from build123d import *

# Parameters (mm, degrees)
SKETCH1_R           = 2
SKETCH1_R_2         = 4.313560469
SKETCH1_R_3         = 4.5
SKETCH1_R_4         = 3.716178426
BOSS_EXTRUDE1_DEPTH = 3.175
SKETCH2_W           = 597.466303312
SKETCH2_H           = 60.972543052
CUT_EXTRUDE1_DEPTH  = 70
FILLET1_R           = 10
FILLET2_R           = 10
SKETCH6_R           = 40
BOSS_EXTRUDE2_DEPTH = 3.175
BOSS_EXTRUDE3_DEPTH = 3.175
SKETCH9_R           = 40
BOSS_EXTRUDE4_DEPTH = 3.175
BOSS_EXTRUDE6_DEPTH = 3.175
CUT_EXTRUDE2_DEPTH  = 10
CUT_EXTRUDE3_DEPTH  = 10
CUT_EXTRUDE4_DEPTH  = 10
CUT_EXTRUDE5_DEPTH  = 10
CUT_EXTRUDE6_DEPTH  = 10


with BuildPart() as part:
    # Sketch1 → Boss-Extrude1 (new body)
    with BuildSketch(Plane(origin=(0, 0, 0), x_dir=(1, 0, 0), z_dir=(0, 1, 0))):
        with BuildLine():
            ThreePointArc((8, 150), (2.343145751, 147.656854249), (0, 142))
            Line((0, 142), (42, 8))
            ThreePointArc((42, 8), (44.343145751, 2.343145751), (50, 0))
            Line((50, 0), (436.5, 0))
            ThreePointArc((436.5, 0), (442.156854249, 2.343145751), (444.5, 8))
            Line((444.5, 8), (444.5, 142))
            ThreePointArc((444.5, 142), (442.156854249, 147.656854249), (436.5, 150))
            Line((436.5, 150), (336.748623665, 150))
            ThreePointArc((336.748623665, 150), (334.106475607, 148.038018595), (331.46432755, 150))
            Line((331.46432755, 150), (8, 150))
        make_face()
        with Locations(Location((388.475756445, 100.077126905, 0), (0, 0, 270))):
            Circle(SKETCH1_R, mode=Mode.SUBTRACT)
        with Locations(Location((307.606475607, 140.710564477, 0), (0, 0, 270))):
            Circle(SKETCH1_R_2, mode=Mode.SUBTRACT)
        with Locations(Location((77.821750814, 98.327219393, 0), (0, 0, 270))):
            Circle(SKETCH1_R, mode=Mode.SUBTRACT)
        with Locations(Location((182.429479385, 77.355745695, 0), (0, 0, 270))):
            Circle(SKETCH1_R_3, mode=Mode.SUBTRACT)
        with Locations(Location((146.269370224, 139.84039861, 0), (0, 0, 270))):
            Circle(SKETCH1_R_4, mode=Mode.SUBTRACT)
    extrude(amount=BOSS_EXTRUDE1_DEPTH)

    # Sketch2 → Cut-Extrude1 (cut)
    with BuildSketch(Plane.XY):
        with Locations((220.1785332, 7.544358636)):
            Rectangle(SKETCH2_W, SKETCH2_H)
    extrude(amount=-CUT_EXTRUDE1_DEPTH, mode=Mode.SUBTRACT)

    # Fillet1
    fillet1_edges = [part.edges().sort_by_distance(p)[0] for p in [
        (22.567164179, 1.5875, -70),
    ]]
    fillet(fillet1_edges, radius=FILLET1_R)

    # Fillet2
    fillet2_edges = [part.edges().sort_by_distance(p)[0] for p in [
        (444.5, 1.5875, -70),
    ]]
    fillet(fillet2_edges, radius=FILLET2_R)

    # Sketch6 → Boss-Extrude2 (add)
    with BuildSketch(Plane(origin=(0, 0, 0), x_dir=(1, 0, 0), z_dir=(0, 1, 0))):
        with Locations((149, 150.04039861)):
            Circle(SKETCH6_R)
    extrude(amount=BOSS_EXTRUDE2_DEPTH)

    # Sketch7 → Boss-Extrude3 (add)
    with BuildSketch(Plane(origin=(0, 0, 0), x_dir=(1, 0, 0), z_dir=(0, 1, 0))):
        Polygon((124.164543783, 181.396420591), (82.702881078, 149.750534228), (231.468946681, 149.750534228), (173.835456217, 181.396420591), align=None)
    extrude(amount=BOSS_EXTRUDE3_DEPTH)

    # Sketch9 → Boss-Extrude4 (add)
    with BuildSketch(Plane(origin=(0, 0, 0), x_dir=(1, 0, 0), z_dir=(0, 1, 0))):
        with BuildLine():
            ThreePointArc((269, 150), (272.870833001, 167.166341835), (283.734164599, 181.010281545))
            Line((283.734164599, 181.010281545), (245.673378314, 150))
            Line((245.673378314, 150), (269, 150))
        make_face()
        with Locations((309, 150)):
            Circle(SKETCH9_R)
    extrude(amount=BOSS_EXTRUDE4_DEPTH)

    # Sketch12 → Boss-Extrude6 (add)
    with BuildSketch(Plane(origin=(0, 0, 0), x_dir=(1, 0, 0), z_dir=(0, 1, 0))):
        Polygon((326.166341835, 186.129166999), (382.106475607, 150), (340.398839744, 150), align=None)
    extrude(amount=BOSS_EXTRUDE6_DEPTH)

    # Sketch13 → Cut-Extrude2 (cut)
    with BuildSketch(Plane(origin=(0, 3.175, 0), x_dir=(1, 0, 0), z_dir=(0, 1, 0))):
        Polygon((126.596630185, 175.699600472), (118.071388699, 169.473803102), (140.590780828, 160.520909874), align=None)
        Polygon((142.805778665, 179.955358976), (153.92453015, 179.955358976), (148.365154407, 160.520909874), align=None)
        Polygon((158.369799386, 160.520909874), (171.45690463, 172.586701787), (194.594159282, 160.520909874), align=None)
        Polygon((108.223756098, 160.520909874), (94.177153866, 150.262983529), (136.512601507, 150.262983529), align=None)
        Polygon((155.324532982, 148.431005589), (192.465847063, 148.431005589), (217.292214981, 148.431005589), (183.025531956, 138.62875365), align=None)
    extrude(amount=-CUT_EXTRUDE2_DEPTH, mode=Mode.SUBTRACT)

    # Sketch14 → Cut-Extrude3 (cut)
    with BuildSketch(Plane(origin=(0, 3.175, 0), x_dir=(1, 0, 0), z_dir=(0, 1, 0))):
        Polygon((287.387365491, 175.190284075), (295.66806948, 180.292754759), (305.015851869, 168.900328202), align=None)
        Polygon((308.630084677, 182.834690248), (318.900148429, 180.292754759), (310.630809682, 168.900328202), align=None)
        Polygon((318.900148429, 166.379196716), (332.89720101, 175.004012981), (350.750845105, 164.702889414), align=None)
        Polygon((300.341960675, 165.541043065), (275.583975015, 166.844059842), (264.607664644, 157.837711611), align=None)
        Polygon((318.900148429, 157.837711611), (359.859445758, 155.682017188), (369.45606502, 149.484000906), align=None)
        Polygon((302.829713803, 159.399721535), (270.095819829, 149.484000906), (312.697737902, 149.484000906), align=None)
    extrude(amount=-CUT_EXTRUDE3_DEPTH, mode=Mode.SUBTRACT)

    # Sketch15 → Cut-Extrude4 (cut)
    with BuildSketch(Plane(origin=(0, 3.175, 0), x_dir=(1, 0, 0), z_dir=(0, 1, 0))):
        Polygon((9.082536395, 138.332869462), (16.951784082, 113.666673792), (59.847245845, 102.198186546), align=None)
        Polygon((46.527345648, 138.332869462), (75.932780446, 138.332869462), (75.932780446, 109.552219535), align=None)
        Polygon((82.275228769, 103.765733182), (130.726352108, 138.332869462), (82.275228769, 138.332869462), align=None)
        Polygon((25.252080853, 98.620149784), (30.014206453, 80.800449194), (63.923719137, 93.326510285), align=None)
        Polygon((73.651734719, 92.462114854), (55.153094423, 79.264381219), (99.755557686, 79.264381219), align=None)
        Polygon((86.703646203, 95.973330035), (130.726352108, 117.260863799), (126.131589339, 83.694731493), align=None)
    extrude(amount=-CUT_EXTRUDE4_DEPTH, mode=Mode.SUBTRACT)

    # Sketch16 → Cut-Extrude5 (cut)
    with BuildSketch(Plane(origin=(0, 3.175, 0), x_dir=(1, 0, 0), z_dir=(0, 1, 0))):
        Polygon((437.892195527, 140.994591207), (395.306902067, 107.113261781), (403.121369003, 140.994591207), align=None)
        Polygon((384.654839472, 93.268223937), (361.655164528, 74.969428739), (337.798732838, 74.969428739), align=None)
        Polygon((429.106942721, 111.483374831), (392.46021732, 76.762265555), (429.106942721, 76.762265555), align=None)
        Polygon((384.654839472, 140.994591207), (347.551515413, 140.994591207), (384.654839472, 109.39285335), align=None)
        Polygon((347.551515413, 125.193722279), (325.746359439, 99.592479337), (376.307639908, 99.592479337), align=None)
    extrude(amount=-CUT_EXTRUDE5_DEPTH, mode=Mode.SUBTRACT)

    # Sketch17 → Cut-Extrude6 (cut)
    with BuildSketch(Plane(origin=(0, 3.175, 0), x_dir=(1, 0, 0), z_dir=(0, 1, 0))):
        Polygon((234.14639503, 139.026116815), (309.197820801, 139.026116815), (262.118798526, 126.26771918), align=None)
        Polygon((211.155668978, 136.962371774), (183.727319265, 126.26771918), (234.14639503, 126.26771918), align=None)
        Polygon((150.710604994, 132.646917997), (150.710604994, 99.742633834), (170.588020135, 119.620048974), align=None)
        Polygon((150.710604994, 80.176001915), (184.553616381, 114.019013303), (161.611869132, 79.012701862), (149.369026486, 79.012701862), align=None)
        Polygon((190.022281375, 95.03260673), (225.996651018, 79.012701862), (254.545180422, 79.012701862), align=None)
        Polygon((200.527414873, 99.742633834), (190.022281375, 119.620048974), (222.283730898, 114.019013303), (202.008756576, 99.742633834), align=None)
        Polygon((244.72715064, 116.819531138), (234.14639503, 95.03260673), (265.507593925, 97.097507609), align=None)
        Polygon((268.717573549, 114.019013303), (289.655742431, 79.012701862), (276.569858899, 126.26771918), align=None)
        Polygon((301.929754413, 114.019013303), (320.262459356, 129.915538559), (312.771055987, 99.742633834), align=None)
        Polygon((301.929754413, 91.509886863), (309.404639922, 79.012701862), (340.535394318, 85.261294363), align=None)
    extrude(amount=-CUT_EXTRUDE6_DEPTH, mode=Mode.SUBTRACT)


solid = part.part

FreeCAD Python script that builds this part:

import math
import FreeCAD as App
import Part
import Sketcher

V = App.Vector
Q = App.Units.Quantity


def edges_at(feature, points):
    """Names of the edges that pass closest to the given points."""
    edges = feature.Shape.Edges
    near = lambda p: min(range(len(edges)), key=lambda i: edges[i].distToShape(Part.Vertex(*p))[0])
    return sorted({f"Edge{near(p) + 1}" for p in points})


def add_polygon(sketch, points):
    """Adds a closed chain of lines whose ends are joined by coincident constraints."""
    first, n = sketch.GeometryCount, len(points)
    for a, b in zip(points, points[1:] + points[:1]):
        sketch.addGeometry(Part.LineSegment(App.Vector(*a, 0), App.Vector(*b, 0)), False)
    for i in range(n):
        sketch.addConstraint(Sketcher.Constraint("Coincident", first + i, 2, first + (i + 1) % n, 1))

doc = App.newDocument("Part")
body = doc.addObject("PartDesign::Body", "Body")

sketch1 = body.newObject("Sketcher::SketchObject", "Sketch")
sketch1.AttachmentSupport = (doc.getObject("XZ_Plane"), [""])
sketch1.MapMode = "FlatFace"
sketch1.addGeometry([
    Part.ArcOfCircle(Part.Circle(V(8, -142, 0), V(0, 0, 1), 8), math.radians(-180), math.radians(-90)),
    Part.LineSegment(V(0, -142, 0), V(42, -8, 0)),
    Part.ArcOfCircle(Part.Circle(V(50, -8, 0), V(0, 0, 1), 8), math.radians(90), math.radians(180)),
    Part.LineSegment(V(50, 0, 0), V(436.5, 0, 0)),
    Part.ArcOfCircle(Part.Circle(V(436.5, -8, 0), V(0, 0, 1), 8), math.radians(0), math.radians(90)),
    Part.LineSegment(V(444.5, -8, 0), V(444.5, -142, 0)),
    Part.ArcOfCircle(Part.Circle(V(436.5, -142, 0), V(0, 0, 1), 8), math.radians(-90), math.radians(0)),
    Part.LineSegment(V(436.5, -150, 0), V(336.7, -150, 0)),
    Part.ArcOfCircle(Part.Circle(V(334.1, -150.8, 0), V(0, 0, 1), 2.8), math.radians(17), math.radians(163)),
    Part.LineSegment(V(331.5, -150, 0), V(8, -150, 0)),
    Part.Circle(V(182.4, -77.4, 0), V(0, 0, 1), 4.5),
    Part.Circle(V(77.8, -98.3, 0), V(0, 0, 1), 2),
    Part.Circle(V(388.5, -100.1, 0), V(0, 0, 1), 2),
    Part.Circle(V(146.3, -139.8, 0), V(0, 0, 1), 3.7),
    Part.Circle(V(307.6, -140.7, 0), V(0, 0, 1), 4.3),
], False)
sketch1.addConstraint([
    Sketcher.Constraint("Coincident", 0, 1, 1, 1),
    Sketcher.Constraint("Coincident", 1, 2, 2, 2),
    Sketcher.Constraint("Tangent", 2, 1, 3, 1),
    Sketcher.Constraint("Tangent", 3, 2, 4, 2),
    Sketcher.Constraint("Tangent", 4, 1, 5, 1),
    Sketcher.Constraint("Tangent", 5, 2, 6, 2),
    Sketcher.Constraint("Tangent", 6, 1, 7, 1),
    Sketcher.Constraint("Coincident", 7, 2, 8, 1),
    Sketcher.Constraint("Coincident", 8, 2, 9, 1),
    Sketcher.Constraint("Tangent", 9, 2, 0, 2),
    Sketcher.Constraint("Horizontal", 3),
    Sketcher.Constraint("Vertical", 5),
    Sketcher.Constraint("Horizontal", 7),
    Sketcher.Constraint("Horizontal", 9),
    Sketcher.Constraint("Equal", 0, 2),
    Sketcher.Constraint("Equal", 2, 4),
    Sketcher.Constraint("Equal", 4, 6),
    Sketcher.Constraint("Equal", 11, 12),
    Sketcher.Constraint("PointOnObject", 0, 1, -2),
    Sketcher.Constraint("PointOnObject", 2, 1, -1),
    Sketcher.Constraint("Horizontal", 0, 3, 6, 3),
    Sketcher.Constraint("Horizontal", 6, 3, 0, 1),
    Sketcher.Constraint("Horizontal", 4, 3, 1, 2),
    Sketcher.Constraint("Diameter", 10, Q("9 mm")),
    Sketcher.Constraint("Diameter", 11, Q("4 mm")),
    Sketcher.Constraint("Radius", 0, Q("8 mm")),
    Sketcher.Constraint("DistanceY", 5, 2, 5, 1, Q("134 mm")),
    Sketcher.Constraint("DistanceX", 3, 1, 3, 2, Q("386.5 mm")),
    Sketcher.Constraint("DistanceX", -1, 1, 2, 3, Q("50 mm")),
    Sketcher.Constraint("DistanceX", 14, 3, 8, 3, Q("26.5 mm")),
    Sketcher.Constraint("Diameter", 14, Q("8.627121 mm")),
    Sketcher.Constraint("Diameter", 13, Q("7.432357 mm")),
    Sketcher.Constraint("Radius", 8, Q("2.760046 mm")),
    Sketcher.Constraint("DistanceY", 13, 3, -1, 1, Q("139.840399 mm")),
    Sketcher.Constraint("DistanceY", 8, 3, 14, 3, Q("10.0875 mm")),
    Sketcher.Constraint("DistanceX", 7, 2, 7, 1, Q("99.751376 mm")),
    Sketcher.Constraint("DistanceX", 9, 2, 9, 1, Q("323.464328 mm")),
    Sketcher.Constraint("DistanceX", -1, 1, 10, 3, Q("182.429479 mm")),
    Sketcher.Constraint("DistanceX", -1, 1, 11, 3, Q("77.821751 mm")),
    Sketcher.Constraint("DistanceY", 11, 3, -1, 1, Q("98.327219 mm")),
    Sketcher.Constraint("DistanceX", -1, 1, 13, 3, Q("146.26937 mm")),
    Sketcher.Constraint("DistanceY", 8, 3, 10, 3, Q("73.442319 mm")),
    Sketcher.Constraint("DistanceX", 8, 3, 12, 3, Q("54.369281 mm")),
    Sketcher.Constraint("DistanceY", 12, 3, 10, 3, Q("22.721381 mm")),
])
pad1 = body.newObject("PartDesign::Pad", "Pad")
pad1.Profile = sketch1
pad1.Length = 3.175
pad1.Reversed = True

sketch2 = body.newObject("Sketcher::SketchObject", "Sketch001")
sketch2.AttachmentSupport = (doc.getObject("XY_Plane"), [""])
sketch2.MapMode = "FlatFace"
add_polygon(sketch2, [(-79, 38), (-79, -23), (519, -23), (519, 38)])
sketch2.addConstraint([
    Sketcher.Constraint("Vertical", 0),
    Sketcher.Constraint("Horizontal", 1),
    Sketcher.Constraint("Vertical", 2),
    Sketcher.Constraint("Horizontal", 3),
    Sketcher.Constraint("DistanceX", 1, 1, 1, 2, Q("597.466303 mm")),
    Sketcher.Constraint("DistanceY", 0, 2, 0, 1, Q("60.972543 mm")),
    Sketcher.Constraint("DistanceX", 0, 2, -1, 1, Q("78.554618 mm")),
    Sketcher.Constraint("DistanceY", -1, 1, 2, 2, Q("38.03063 mm")),
])
pocket1 = body.newObject("PartDesign::Pocket", "Pocket")
pocket1.Profile = sketch2
pocket1.Length = 70
doc.recompute()

fillet = body.newObject("PartDesign::Fillet", "Fillet")
fillet.Base = (pocket1, edges_at(pocket1, [(22.567, 1.587, -70)]))
fillet.Radius = 10
doc.recompute()

fillet2 = body.newObject("PartDesign::Fillet", "Fillet001")
fillet2.Base = (fillet, edges_at(fillet, [(444.5, 1.587, -70)]))
fillet2.Radius = 10

sketch3 = body.newObject("Sketcher::SketchObject", "Sketch002")
sketch3.AttachmentSupport = (doc.getObject("XZ_Plane"), [""])
sketch3.MapMode = "FlatFace"
sketch3.addGeometry(Part.Circle(V(149, -150, 0), V(0, 0, 1), 40), False)
sketch3.addConstraint([
    Sketcher.Constraint("Diameter", 0, Q("80 mm")),
    Sketcher.Constraint("DistanceX", -1, 1, 0, 3, Q("149 mm")),
    Sketcher.Constraint("DistanceY", 0, 3, -1, 1, Q("150.040399 mm")),
])
pad2 = body.newObject("PartDesign::Pad", "Pad001")
pad2.Profile = sketch3
pad2.Length = 3.175
pad2.Reversed = True

sketch4 = body.newObject("Sketcher::SketchObject", "Sketch003")
sketch4.AttachmentSupport = (doc.getObject("XZ_Plane"), [""])
sketch4.MapMode = "FlatFace"
add_polygon(sketch4, [(124, -181), (83, -150), (231, -150), (174, -181)])
sketch4.addConstraint([
    Sketcher.Constraint("Horizontal", 1),
    Sketcher.Constraint("Horizontal", 3),
    Sketcher.Constraint("DistanceX", 1, 1, 1, 2, Q("148.766066 mm")),
    Sketcher.Constraint("DistanceX", 3, 2, 3, 1, Q("49.670912 mm")),
    Sketcher.Constraint("DistanceX", -1, 1, 0, 2, Q("82.702881 mm")),
    Sketcher.Constraint("DistanceY", 2, 2, -1, 1, Q("181.396421 mm")),
    Sketcher.Constraint("DistanceX", 2, 2, 1, 2, Q("57.63349 mm")),
    Sketcher.Constraint("Distance", 0, Q("52.158715 mm")),
])
pad3 = body.newObject("PartDesign::Pad", "Pad002")
pad3.Profile = sketch4
pad3.Length = 3.175
pad3.Reversed = True

sketch5 = body.newObject("Sketcher::SketchObject", "Sketch004")
sketch5.AttachmentSupport = (doc.getObject("XZ_Plane"), [""])
sketch5.MapMode = "FlatFace"
sketch5.addGeometry([
    Part.LineSegment(V(284, -181, 0), V(246, -150, 0)),
    Part.LineSegment(V(246, -150, 0), V(269, -150, 0)),
    Part.ArcOfCircle(Part.Circle(V(309, -150, 0), V(0, 0, 1), 40), math.radians(-129), math.radians(180)),
], False)
sketch5.addConstraint([
    Sketcher.Constraint("Coincident", 0, 2, 1, 1),
    Sketcher.Constraint("Coincident", 1, 2, 2, 2),
    Sketcher.Constraint("Tangent", 2, 1, 0, 1),
    Sketcher.Constraint("Horizontal", 1),
    Sketcher.Constraint("Horizontal", 2, 3, 0, 2),
    Sketcher.Constraint("Radius", 2, Q("40 mm")),
    Sketcher.Constraint("DistanceX", -1, 1, 2, 3, Q("309 mm")),
    Sketcher.Constraint("DistanceY", 2, 3, -1, 1, Q("150 mm")),
    Sketcher.Constraint("DistanceX", 1, 1, 1, 2, Q("23.326622 mm")),
])
pad4 = body.newObject("PartDesign::Pad", "Pad003")
pad4.Profile = sketch5
pad4.Length = 3.175
pad4.Reversed = True

sketch6 = body.newObject("Sketcher::SketchObject", "Sketch005")
sketch6.AttachmentSupport = (doc.getObject("XZ_Plane"), [""])
sketch6.MapMode = "FlatFace"
add_polygon(sketch6, [(382, -150), (326, -186), (340, -150)])
sketch6.addConstraint([
    Sketcher.Constraint("Horizontal", 2),
    Sketcher.Constraint("DistanceY", 1, 2, -1, 1, Q("150 mm")),
    Sketcher.Constraint("Distance", 1, Q("38.83144 mm")),
    Sketcher.Constraint("DistanceX", 2, 1, 2, 2, Q("41.707636 mm")),
    Sketcher.Constraint("DistanceX", -1, 1, 0, 2, Q("326.166342 mm")),
    Sketcher.Constraint("DistanceX", -1, 1, 1, 2, Q("340.39884 mm")),
])
pad5 = body.newObject("PartDesign::Pad", "Pad004")
pad5.Profile = sketch6
pad5.Length = 3.175
pad5.Reversed = True

sketch7 = body.newObject("Sketcher::SketchObject", "Sketch006")
sketch7.AttachmentSupport = (doc.getObject("XZ_Plane"), [""])
sketch7.MapMode = "FlatFace"
sketch7.AttachmentOffset = App.Placement(V(0, 0, -3.175), App.Rotation())
add_polygon(sketch7, [(127, -176), (118, -169), (141, -161)])
add_polygon(sketch7, [(154, -180), (143, -180), (148, -161)])
add_polygon(sketch7, [(171, -173), (158, -161), (195, -161)])
add_polygon(sketch7, [(108, -161), (94, -150), (137, -150)])
add_polygon(sketch7, [(217, -148), (155, -148), (183, -139)])
sketch7.addConstraint([
    Sketcher.Constraint("Horizontal", 3),
    Sketcher.Constraint("Horizontal", 7),
    Sketcher.Constraint("Horizontal", 10),
    Sketcher.Constraint("Horizontal", 12),
    Sketcher.Constraint("Perpendicular", 2, 6),
    Sketcher.Constraint("Parallel", 0, 9),
    Sketcher.Constraint("Perpendicular", 4, 14),
    Sketcher.Constraint("Horizontal", 1, 2, 4, 2),
    Sketcher.Constraint("Horizontal", 4, 2, 6, 2),
    Sketcher.Constraint("Horizontal", 7, 2, 11, 2),
    Sketcher.Constraint("Equal", 4, 5),
    Sketcher.Constraint("DistanceX", 9, 2, 4, 2, Q("54.188001 mm")),
    Sketcher.Constraint("DistanceX", 12, 2, 13, 2, Q("27.700999 mm")),
    Sketcher.Constraint("DistanceX", 3, 2, 3, 1, Q("11.118751 mm")),
    Sketcher.Constraint("DistanceX", 7, 1, 7, 2, Q("36.22436 mm")),
    Sketcher.Constraint("DistanceX", 12, 2, 12, 1, Q("61.967682 mm")),
    Sketcher.Constraint("DistanceY", 2, 2, -1, 1, Q("175.6996 mm")),
    Sketcher.Constraint("DistanceX", -1, 1, 6, 2, Q("158.369799 mm")),
    Sketcher.Constraint("DistanceY", 8, 2, -1, 1, Q("172.586702 mm")),
    Sketcher.Constraint("DistanceX", -1, 1, 10, 2, Q("136.512602 mm")),
    Sketcher.Constraint("DistanceX", 2, 2, 5, 2, Q("27.3279 mm")),
    Sketcher.Constraint("Distance", 0, Q("10.556529 mm")),
    Sketcher.Constraint("Distance", 2, Q("20.645312 mm")),
    Sketcher.Constraint("Distance", 6, Q("17.80044 mm")),
    Sketcher.Constraint("Distance", 9, Q("17.39345 mm")),
    Sketcher.Constraint("Distance", 11, Q("30.091258 mm")),
    Sketcher.Constraint("Distance", 13, Q("29.384171 mm")),
    Sketcher.Constraint("DistanceX", 10, 1, 10, 2, Q("42.335448 mm")),
    Sketcher.Constraint("DistanceX", -1, 1, 13, 2, Q("183.025532 mm")),
    Sketcher.Constraint("DistanceY", 8, 2, 13, 2, Q("33.957948 mm")),
])
pocket2 = body.newObject("PartDesign::Pocket", "Pocket001")
pocket2.Profile = sketch7
pocket2.Length = 10
pocket2.Reversed = True

sketch8 = body.newObject("Sketcher::SketchObject", "Sketch007")
sketch8.AttachmentSupport = (doc.getObject("XZ_Plane"), [""])
sketch8.MapMode = "FlatFace"
sketch8.AttachmentOffset = App.Placement(V(0, 0, -3.175), App.Rotation())
add_polygon(sketch8, [(296, -180), (287, -175), (305, -169)])
add_polygon(sketch8, [(319, -180), (309, -183), (311, -169)])
add_polygon(sketch8, [(333, -175), (319, -166), (351, -165)])
add_polygon(sketch8, [(300, -166), (276, -167), (265, -158)])
add_polygon(sketch8, [(360, -156), (319, -158), (369, -149)])
add_polygon(sketch8, [(303, -159), (270, -149), (313, -149)])
sketch8.addConstraint([
    Sketcher.Constraint("Horizontal", 16),
    Sketcher.Constraint("Parallel", 0, 6),
    Sketcher.Constraint("Parallel", 7, 9),
    Sketcher.Constraint("Perpendicular", 2, 10),
    Sketcher.Constraint("Parallel", 9, 12),
    Sketcher.Constraint("Horizontal", 1, 2, 4, 2),
    Sketcher.Constraint("Horizontal", 2, 2, 5, 2),
    Sketcher.Constraint("Horizontal", 10, 2, 12, 2),
    Sketcher.Constraint("Horizontal", 13, 2, 15, 2),
    Sketcher.Constraint("Vertical", 5, 2, 6, 2),
    Sketcher.Constraint("Vertical", 6, 2, 12, 2),
    Sketcher.Constraint("Equal", 4, 5),
    Sketcher.Constraint("DistanceY", 13, 2, -1, 1, Q("149.484001 mm")),
    Sketcher.Constraint("DistanceX", 16, 1, 16, 2, Q("42.601918 mm")),
    Sketcher.Constraint("DistanceX", -1, 1, 8, 2, Q("332.897201 mm")),
    Sketcher.Constraint("DistanceY", 3, 2, 7, 2, Q("18.131801 mm")),
    Sketcher.Constraint("DistanceX", 10, 2, 0, 2, Q("22.779701 mm")),
    Sketcher.Constraint("DistanceY", 8, 2, 12, 2, Q("17.166301 mm")),
    Sketcher.Constraint("DistanceX", 7, 2, 14, 2, Q("9.108601 mm")),
    Sketcher.Constraint("Distance", 7, Q("31.894778 mm")),
    Sketcher.Constraint("Distance", 8, Q("20.612272 mm")),
    Sketcher.Constraint("Distance", 9, Q("24.792251 mm")),
    Sketcher.Constraint("Distance", 10, Q("14.19837 mm")),
    Sketcher.Constraint("Distance", 11, Q("36.555181 mm")),
    Sketcher.Constraint("Distance", 13, Q("51.24144 mm")),
    Sketcher.Constraint("Distance", 14, Q("11.42412 mm")),
    Sketcher.Constraint("Distance", 17, Q("13.989261 mm")),
    Sketcher.Constraint("DistanceX", -1, 1, 1, 2, Q("305.015852 mm")),
    Sketcher.Constraint("DistanceY", 1, 2, -1, 1, Q("168.900328 mm")),
    Sketcher.Constraint("DistanceX", -1, 1, 2, 2, Q("295.668069 mm")),
    Sketcher.Constraint("DistanceY", 3, 2, -1, 1, Q("182.83469 mm")),
    Sketcher.Constraint("DistanceX", -1, 1, 4, 2, Q("310.63081 mm")),
    Sketcher.Constraint("DistanceX", -1, 1, 5, 2, Q("318.900148 mm")),
    Sketcher.Constraint("DistanceX", -1, 1, 11, 2, Q("300.341961 mm")),
    Sketcher.Constraint("DistanceX", -1, 1, 15, 2, Q("270.09582 mm")),
    Sketcher.Constraint("DistanceY", 17, 2, -1, 1, Q("159.399722 mm")),
])
pocket3 = body.newObject("PartDesign::Pocket", "Pocket002")
pocket3.Profile = sketch8
pocket3.Length = 10
pocket3.Reversed = True

sketch9 = body.newObject("Sketcher::SketchObject", "Sketch008")
sketch9.AttachmentSupport = (doc.getObject("XZ_Plane"), [""])
sketch9.MapMode = "FlatFace"
sketch9.AttachmentOffset = App.Placement(V(0, 0, -3.175), App.Rotation())
add_polygon(sketch9, [(9, -138), (17, -114), (60, -102)])
add_polygon(sketch9, [(76, -138), (47, -138), (76, -110)])
add_polygon(sketch9, [(82, -104), (131, -138), (82, -138)])
add_polygon(sketch9, [(25, -99), (30, -81), (64, -93)])
add_polygon(sketch9, [(74, -92), (55, -79), (100, -79)])
add_polygon(sketch9, [(131, -117), (87, -96), (126, -84)])
sketch9.addConstraint([
    Sketcher.Constraint("Horizontal", 3),
    Sketcher.Constraint("Vertical", 5),
    Sketcher.Constraint("Horizontal", 7),
    Sketcher.Constraint("Vertical", 8),
    Sketcher.Constraint("Horizontal", 13),
    Sketcher.Constraint("Parallel", 6, 12),
    Sketcher.Constraint("Perpendicular", 11, 17),
    Sketcher.Constraint("Horizontal", 2, 2, 3, 2),
    Sketcher.Constraint("Horizontal", 5, 2, 6, 2),
    Sketcher.Constraint("Vertical", 6, 2, 17, 2),
    Sketcher.Constraint("DistanceY", 8, 2, 16, 2, Q("20.071002 mm")),
    Sketcher.Constraint("Distance", 16, Q("41.295601 mm")),
    Sketcher.Constraint("DistanceY", 5, 2, 5, 1, Q("28.78065 mm")),
    Sketcher.Constraint("DistanceX", 3, 2, 1, 2, Q("13.3199 mm")),
    Sketcher.Constraint("DistanceY", 11, 2, 9, 2, Q("17.819701 mm")),
    Sketcher.Constraint("DistanceY", 15, 2, 16, 2, Q("12.278599 mm")),
    Sketcher.Constraint("Distance", 6, Q("59.51805 mm")),
    Sketcher.Constraint("Distance", 9, Q("18.445042 mm")),
    Sketcher.Constraint("Distance", 11, Q("39.032272 mm")),
    Sketcher.Constraint("DistanceX", 3, 2, 3, 1, Q("29.405435 mm")),
    Sketcher.Constraint("DistanceX", 7, 2, 7, 1, Q("48.451123 mm")),
    Sketcher.Constraint("DistanceX", 13, 1, 13, 2, Q("44.602463 mm")),
    Sketcher.Constraint("DistanceY", 2, 2, -1, 1, Q("138.332869 mm")),
    Sketcher.Constraint("DistanceX", -1, 1, 4, 2, Q("75.93278 mm")),
    Sketcher.Constraint("DistanceX", -1, 1, 7, 2, Q("82.275229 mm")),
    Sketcher.Constraint("DistanceY", 9, 2, -1, 1, Q("80.800449 mm")),
    Sketcher.Constraint("DistanceX", -1, 1, 10, 2, Q("63.923719 mm")),
    Sketcher.Constraint("DistanceY", 10, 2, -1, 1, Q("93.32651 mm")),
    Sketcher.Constraint("DistanceY", 12, 2, -1, 1, Q("79.264381 mm")),
    Sketcher.Constraint("DistanceX", -1, 1, 16, 2, Q("126.131589 mm")),
    Sketcher.Constraint("DistanceX", 0, 2, 1, 2, Q("42.895462 mm")),
    Sketcher.Constraint("DistanceX", 2, 2, 1, 2, Q("50.764709 mm")),
    Sketcher.Constraint("DistanceX", 12, 2, 1, 2, Q("4.694151 mm")),
    Sketcher.Constraint("DistanceY", 8, 2, 14, 2, Q("11.303618 mm")),
    Sketcher.Constraint("DistanceY", 1, 2, 14, 2, Q("9.736072 mm")),
    Sketcher.Constraint("Distance", 0, Q("25.891046 mm")),
])
pocket4 = body.newObject("PartDesign::Pocket", "Pocket003")
pocket4.Profile = sketch9
pocket4.Length = 10
pocket4.Reversed = True

sketch10 = body.newObject("Sketcher::SketchObject", "Sketch009")
sketch10.AttachmentSupport = (doc.getObject("XZ_Plane"), [""])
sketch10.MapMode = "FlatFace"
sketch10.AttachmentOffset = App.Placement(V(0, 0, -3.175), App.Rotation())
add_polygon(sketch10, [(395, -107), (438, -141), (403, -141)])
add_polygon(sketch10, [(362, -75), (385, -93), (338, -75)])
add_polygon(sketch10, [(429, -111), (392, -77), (429, -77)])
add_polygon(sketch10, [(385, -141), (348, -141), (385, -109)])
add_polygon(sketch10, [(348, -125), (326, -100), (376, -100)])
sketch10.addConstraint([
    Sketcher.Constraint("Horizontal", 1),
    Sketcher.Constraint("Horizontal", 5),
    Sketcher.Constraint("Horizontal", 7),
    Sketcher.Constraint("Vertical", 8),
    Sketcher.Constraint("Horizontal", 9),
    Sketcher.Constraint("Vertical", 11),
    Sketcher.Constraint("Horizontal", 13),
    Sketcher.Constraint("Parallel", 0, 3),
    Sketcher.Constraint("Perpendicular", 10, 12),
    Sketcher.Constraint("Horizontal", 1, 2, 9, 2),
    Sketcher.Constraint("Vertical", 3, 2, 10, 2),
    Sketcher.Constraint("Vertical", 9, 2, 14, 2),
    Sketcher.Constraint("Distance", 3, Q("29.391001 mm")),
    Sketcher.Constraint("DistanceX", 5, 1, 5, 2, Q("23.856432 mm")),
    Sketcher.Constraint("DistanceX", 13, 1, 13, 2, Q("50.56128 mm")),
    Sketcher.Constraint("DistanceY", 8, 2, 8, 1, Q("34.721109 mm")),
    Sketcher.Constraint("DistanceX", 13, 2, 3, 2, Q("8.3472 mm")),
    Sketcher.Constraint("Distance", 0, Q("54.419222 mm")),
    Sketcher.Constraint("Distance", 4, Q("50.302491 mm")),
    Sketcher.Constraint("Distance", 10, Q("48.737321 mm")),
    Sketcher.Constraint("DistanceX", 1, 2, 1, 1, Q("34.770827 mm")),
    Sketcher.Constraint("DistanceX", 7, 1, 7, 2, Q("36.646725 mm")),
    Sketcher.Constraint("DistanceX", 9, 2, 9, 1, Q("37.103324 mm")),
    Sketcher.Constraint("DistanceY", 0, 2, -1, 1, Q("140.994591 mm")),
    Sketcher.Constraint("DistanceX", -1, 1, 1, 2, Q("403.121369 mm")),
    Sketcher.Constraint("DistanceX", -1, 1, 3, 2, Q("384.654839 mm")),
    Sketcher.Constraint("DistanceY", 4, 2, -1, 1, Q("74.969429 mm")),
    Sketcher.Constraint("DistanceY", 12, 2, -1, 1, Q("99.592479 mm")),
    Sketcher.Constraint("DistanceY", 3, 2, 6, 2, Q("16.505958 mm")),
    Sketcher.Constraint("DistanceX", 6, 2, 1, 2, Q("10.661152 mm")),
])
pocket5 = body.newObject("PartDesign::Pocket", "Pocket004")
pocket5.Profile = sketch10
pocket5.Length = 10
pocket5.Reversed = True

sketch11 = body.newObject("Sketcher::SketchObject", "Sketch010")
sketch11.AttachmentSupport = (doc.getObject("XZ_Plane"), [""])
sketch11.MapMode = "FlatFace"
sketch11.AttachmentOffset = App.Placement(V(0, 0, -3.175), App.Rotation())
add_polygon(sketch11, [(309.197821, -139.026117), (234.146395, -139.026117), (262.118799, -126.267719)])
add_polygon(sketch11, [(211.155669, -136.962372), (183.727319, -126.267719), (234.146395, -126.267719)])
add_polygon(sketch11, [(150.710605, -132.646918), (150.710605, -99.742634), (170.58802, -119.620049)])
add_polygon(sketch11, [(184.553616, -114.019013), (150.710605, -80.176002), (149.369026, -79.012702), (161.611869, -79.012702)])
add_polygon(sketch11, [(190.022281, -95.032607), (225.996651, -79.012702), (254.54518, -79.012702)])
add_polygon(sketch11, [(190.022281, -119.620049), (200.527415, -99.742634), (202.008757, -99.742634), (222.283731, -114.019013)])
add_polygon(sketch11, [(244.727151, -116.819531), (234.146395, -95.032607), (265.507594, -97.097508)])
add_polygon(sketch11, [(268.717574, -114.019013), (289.655742, -79.012702), (276.569859, -126.267719)])
add_polygon(sketch11, [(320.262459, -129.915539), (301.929754, -114.019013), (312.771056, -99.742634)])
add_polygon(sketch11, [(301.929754, -91.509887), (309.40464, -79.012702), (340.535394, -85.261294)])
sketch11.addConstraint([
    Sketcher.Constraint("Horizontal", 0),
    Sketcher.Constraint("Horizontal", 4),
    Sketcher.Constraint("Vertical", 6),
    Sketcher.Constraint("Horizontal", 11),
    Sketcher.Constraint("Horizontal", 14),
    Sketcher.Constraint("Horizontal", 17),
    Sketcher.Constraint("DistanceY", 9, 2, -1, 1, Q("80.176002 mm")),
    Sketcher.Constraint("Distance", 3, Q("29.439599 mm")),
    Sketcher.Constraint("Distance", 12, Q("41.854099 mm")),
    Sketcher.Constraint("DistanceX", 14, 1, 14, 2, Q("28.548529 mm")),
    Sketcher.Constraint("DistanceX", 17, 1, 17, 2, Q("1.481342 mm")),
    Sketcher.Constraint("DistanceX", -1, 1, 1, 2, Q("262.118799 mm")),
    Sketcher.Constraint("DistanceY", 10, 2, -1, 1, Q("79.012702 mm")),
    Sketcher.Constraint("DistanceY", 13, 2, -1, 1, Q("79.012702 mm")),
    Sketcher.Constraint("DistanceY", 23, 2, -1, 1, Q("79.012702 mm")),
    Sketcher.Constraint("DistanceY", 29, 2, -1, 1, Q("79.012702 mm")),
    Sketcher.Constraint("DistanceX", 3, 2, 2, 2, Q("125.470502 mm")),
    Sketcher.Constraint("DistanceX", 7, 2, 3, 2, Q("13.139299 mm")),
    Sketcher.Constraint("DistanceY", 8, 2, 3, 2, Q("6.379199 mm")),
    Sketcher.Constraint("DistanceX", 12, 2, 16, 2, Q("15.973798 mm")),
    Sketcher.Constraint("DistanceX", 20, 2, 21, 2, Q("31.361199 mm")),
    Sketcher.Constraint("DistanceY", 21, 2, 20, 2, Q("2.064901 mm")),
    Sketcher.Constraint("DistanceX", 4, 2, 21, 2, Q("31.361199 mm")),
    Sketcher.Constraint("DistanceX", 26, 2, 27, 2, Q("10.841302 mm")),
    Sketcher.Constraint("DistanceX", 24, 2, 28, 2, Q("43.6926 mm")),
    Sketcher.Constraint("DistanceX", 31, 2, 27, 2, Q("10.841302 mm")),
    Sketcher.Constraint("Distance", 5, Q("25.356441 mm")),
    Sketcher.Constraint("Distance", 7, Q("28.11091 mm")),
    Sketcher.Constraint("Distance", 8, Q("23.765752 mm")),
    Sketcher.Constraint("Distance", 15, Q("66.481891 mm")),
    Sketcher.Constraint("Distance", 16, Q("22.482648 mm")),
    Sketcher.Constraint("Distance", 19, Q("32.744049 mm")),
    Sketcher.Constraint("Distance", 20, Q("24.22029 mm")),
    Sketcher.Constraint("Distance", 28, Q("31.08899 mm")),
    Sketcher.Constraint("Distance", 29, Q("14.562058 mm")),
    Sketcher.Constraint("Distance", 31, Q("39.10806 mm")),
    Sketcher.Constraint("DistanceX", 0, 2, 0, 1, Q("75.051426 mm")),
    Sketcher.Constraint("DistanceX", 4, 1, 4, 2, Q("50.419076 mm")),
    Sketcher.Constraint("DistanceX", 11, 1, 11, 2, Q("12.242843 mm")),
    Sketcher.Constraint("DistanceY", 6, 1, 6, 2, Q("32.904284 mm")),
    Sketcher.Constraint("DistanceY", 1, 2, -1, 1, Q("126.267719 mm")),
    Sketcher.Constraint("DistanceX", -1, 1, 2, 2, Q("309.197821 mm")),
    Sketcher.Constraint("DistanceY", 3, 2, -1, 1, Q("126.267719 mm")),
    Sketcher.Constraint("DistanceX", -1, 1, 11, 2, Q("161.611869 mm")),
    Sketcher.Constraint("DistanceX", -1, 1, 13, 2, Q("225.996651 mm")),
    Sketcher.Constraint("DistanceX", -1, 1, 15, 2, Q("190.022281 mm")),
    Sketcher.Constraint("DistanceX", -1, 1, 18, 2, Q("222.283731 mm")),
    Sketcher.Constraint("DistanceX", -1, 1, 19, 2, Q("190.022281 mm")),
    Sketcher.Constraint("DistanceY", 19, 2, -1, 1, Q("119.620049 mm")),
    Sketcher.Constraint("DistanceX", -1, 1, 22, 2, Q("244.727151 mm")),
    Sketcher.Constraint("DistanceY", 22, 2, -1, 1, Q("116.819531 mm")),
    Sketcher.Constraint("DistanceX", -1, 1, 24, 2, Q("276.569859 mm")),
    Sketcher.Constraint("DistanceY", 24, 2, -1, 1, Q("126.267719 mm")),
    Sketcher.Constraint("DistanceY", 28, 2, -1, 1, Q("129.915539 mm")),
    Sketcher.Constraint("DistanceX", -1, 1, 29, 2, Q("309.40464 mm")),
    Sketcher.Constraint("DistanceX", 10, 2, 9, 2, Q("1.341579 mm")),
    Sketcher.Constraint("DistanceY", 5, 2, 12, 2, Q("22.943358 mm")),
    Sketcher.Constraint("DistanceX", 21, 2, 23, 2, Q("24.148149 mm")),
    Sketcher.Constraint("DistanceX", 21, 2, 25, 2, Q("3.20998 mm")),
    Sketcher.Constraint("DistanceX", 25, 2, 26, 2, Q("33.212181 mm")),
    Sketcher.Constraint("DistanceY", 26, 2, 23, 2, Q("35.006311 mm")),
    Sketcher.Constraint("DistanceY", 25, 2, 27, 2, Q("14.276379 mm")),
    Sketcher.Constraint("DistanceY", 2, 2, 28, 2, Q("9.110578 mm")),
    Sketcher.Constraint("DistanceX", 27, 2, 30, 2, Q("27.764338 mm")),
])
pocket6 = body.newObject("PartDesign::Pocket", "Pocket005")
pocket6.Profile = sketch11
pocket6.Length = 10
pocket6.Reversed = True

doc.recompute()
